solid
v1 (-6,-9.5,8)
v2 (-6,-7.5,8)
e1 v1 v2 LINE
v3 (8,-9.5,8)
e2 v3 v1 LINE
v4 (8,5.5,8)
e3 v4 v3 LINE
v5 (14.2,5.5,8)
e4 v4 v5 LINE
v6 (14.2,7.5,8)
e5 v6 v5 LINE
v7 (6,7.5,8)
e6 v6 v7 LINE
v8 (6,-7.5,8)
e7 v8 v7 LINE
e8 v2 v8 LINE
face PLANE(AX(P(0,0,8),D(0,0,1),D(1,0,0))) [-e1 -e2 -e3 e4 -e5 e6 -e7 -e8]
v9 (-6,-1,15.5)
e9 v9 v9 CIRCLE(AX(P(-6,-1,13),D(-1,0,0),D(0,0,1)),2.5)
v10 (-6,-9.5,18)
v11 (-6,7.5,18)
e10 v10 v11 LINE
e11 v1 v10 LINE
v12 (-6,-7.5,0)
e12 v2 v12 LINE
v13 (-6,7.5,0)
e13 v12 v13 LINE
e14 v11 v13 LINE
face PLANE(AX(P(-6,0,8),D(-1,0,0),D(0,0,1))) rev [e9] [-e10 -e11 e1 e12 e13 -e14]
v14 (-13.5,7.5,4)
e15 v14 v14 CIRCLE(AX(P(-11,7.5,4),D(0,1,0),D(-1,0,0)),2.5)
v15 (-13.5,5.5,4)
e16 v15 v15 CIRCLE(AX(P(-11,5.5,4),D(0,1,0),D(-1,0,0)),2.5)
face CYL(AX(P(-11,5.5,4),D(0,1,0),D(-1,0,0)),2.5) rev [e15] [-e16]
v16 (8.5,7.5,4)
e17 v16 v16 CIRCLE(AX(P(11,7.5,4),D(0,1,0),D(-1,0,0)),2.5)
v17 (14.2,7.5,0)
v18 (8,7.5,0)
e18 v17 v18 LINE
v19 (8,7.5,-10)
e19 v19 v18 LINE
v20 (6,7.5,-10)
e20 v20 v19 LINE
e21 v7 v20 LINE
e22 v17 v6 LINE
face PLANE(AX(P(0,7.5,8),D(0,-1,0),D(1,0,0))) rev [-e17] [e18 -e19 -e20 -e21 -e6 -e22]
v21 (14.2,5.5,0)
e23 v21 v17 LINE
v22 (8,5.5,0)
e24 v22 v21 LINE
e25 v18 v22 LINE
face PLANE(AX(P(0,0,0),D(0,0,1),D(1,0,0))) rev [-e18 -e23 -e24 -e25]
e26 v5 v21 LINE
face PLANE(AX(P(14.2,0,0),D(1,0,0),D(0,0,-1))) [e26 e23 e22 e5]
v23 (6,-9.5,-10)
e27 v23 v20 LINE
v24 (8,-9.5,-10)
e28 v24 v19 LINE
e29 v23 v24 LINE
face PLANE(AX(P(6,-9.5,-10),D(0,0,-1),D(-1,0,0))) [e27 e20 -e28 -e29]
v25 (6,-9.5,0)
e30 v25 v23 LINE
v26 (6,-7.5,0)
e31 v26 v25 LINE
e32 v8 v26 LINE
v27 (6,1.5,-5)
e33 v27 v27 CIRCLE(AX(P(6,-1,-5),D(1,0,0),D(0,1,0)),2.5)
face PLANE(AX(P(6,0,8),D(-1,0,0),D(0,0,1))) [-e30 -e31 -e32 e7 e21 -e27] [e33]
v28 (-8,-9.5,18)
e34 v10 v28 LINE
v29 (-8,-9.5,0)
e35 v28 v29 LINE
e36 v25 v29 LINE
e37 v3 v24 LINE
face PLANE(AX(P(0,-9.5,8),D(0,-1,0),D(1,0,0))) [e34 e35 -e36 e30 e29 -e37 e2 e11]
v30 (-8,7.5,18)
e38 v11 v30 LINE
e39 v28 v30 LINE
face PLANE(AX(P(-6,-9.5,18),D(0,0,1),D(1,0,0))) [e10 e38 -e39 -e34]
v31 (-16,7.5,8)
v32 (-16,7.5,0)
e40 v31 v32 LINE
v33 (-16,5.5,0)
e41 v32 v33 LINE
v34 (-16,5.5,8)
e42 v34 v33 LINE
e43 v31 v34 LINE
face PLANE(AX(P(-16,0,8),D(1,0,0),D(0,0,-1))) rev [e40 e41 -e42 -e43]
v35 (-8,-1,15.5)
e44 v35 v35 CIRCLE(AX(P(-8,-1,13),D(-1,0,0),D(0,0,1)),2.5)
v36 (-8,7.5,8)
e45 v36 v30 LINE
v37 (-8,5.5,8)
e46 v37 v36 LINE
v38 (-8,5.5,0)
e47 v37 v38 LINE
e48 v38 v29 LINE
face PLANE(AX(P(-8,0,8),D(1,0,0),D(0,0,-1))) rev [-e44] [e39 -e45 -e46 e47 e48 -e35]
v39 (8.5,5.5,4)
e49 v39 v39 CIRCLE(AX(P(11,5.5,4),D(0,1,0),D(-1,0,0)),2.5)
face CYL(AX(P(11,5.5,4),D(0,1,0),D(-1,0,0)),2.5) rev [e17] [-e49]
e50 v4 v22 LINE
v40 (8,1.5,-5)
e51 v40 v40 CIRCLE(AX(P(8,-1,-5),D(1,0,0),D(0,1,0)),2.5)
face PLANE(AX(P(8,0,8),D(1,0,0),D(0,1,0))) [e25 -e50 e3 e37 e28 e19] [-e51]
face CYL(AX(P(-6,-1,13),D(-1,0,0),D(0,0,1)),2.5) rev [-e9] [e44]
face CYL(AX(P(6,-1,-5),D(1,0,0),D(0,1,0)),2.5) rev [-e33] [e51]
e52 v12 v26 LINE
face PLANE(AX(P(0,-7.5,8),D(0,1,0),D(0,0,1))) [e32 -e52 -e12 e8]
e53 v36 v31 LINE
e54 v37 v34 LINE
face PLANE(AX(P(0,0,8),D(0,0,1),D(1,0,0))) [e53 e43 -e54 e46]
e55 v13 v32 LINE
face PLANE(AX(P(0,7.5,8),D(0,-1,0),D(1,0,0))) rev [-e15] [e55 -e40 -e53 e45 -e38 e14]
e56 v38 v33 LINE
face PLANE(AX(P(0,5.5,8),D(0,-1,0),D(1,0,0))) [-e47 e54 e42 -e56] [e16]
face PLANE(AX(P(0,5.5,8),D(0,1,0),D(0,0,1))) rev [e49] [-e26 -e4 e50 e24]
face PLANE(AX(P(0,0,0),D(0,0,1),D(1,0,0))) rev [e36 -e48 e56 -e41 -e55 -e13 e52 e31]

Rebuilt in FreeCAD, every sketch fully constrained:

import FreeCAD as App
import Part
import Sketcher

V = App.Vector

doc = App.newDocument("Part")
body = doc.addObject("PartDesign::Body", "Body")

# Sketch on XY plane
sketch1 = body.newObject("Sketcher::SketchObject", "Sketch")
sketch1.AttachmentSupport = (doc.getObject("XY_Plane"), [""])
sketch1.MapMode = "FlatFace"
sketch1.addGeometry(Part.LineSegment(V(-16, 7.5, 0), V(-16, 5.5, 0)), False)
sketch1.addGeometry(Part.LineSegment(V(-16, 5.5, 0), V(-8, 5.5, 0)), False)
sketch1.addGeometry(Part.LineSegment(V(-8, 5.5, 0), V(-8, -9.5, 0)), False)
sketch1.addGeometry(Part.LineSegment(V(-8, -9.5, 0), V(8, -9.5, 0)), False)
sketch1.addGeometry(Part.LineSegment(V(8, -9.5, 0), V(8, 5.5, 0)), False)
sketch1.addGeometry(Part.LineSegment(V(8, 5.5, 0), V(16, 5.5, 0)), False)
sketch1.addGeometry(Part.LineSegment(V(16, 5.5, 0), V(16, 7.5, 0)), False)
sketch1.addGeometry(Part.LineSegment(V(16, 7.5, 0), V(6, 7.5, 0)), False)
sketch1.addGeometry(Part.LineSegment(V(6, 7.5, 0), V(6, -7.5, 0)), False)
sketch1.addGeometry(Part.LineSegment(V(6, -7.5, 0), V(-6, -7.5, 0)), False)
sketch1.addGeometry(Part.LineSegment(V(-6, -7.5, 0), V(-6, 7.5, 0)), False)
sketch1.addGeometry(Part.LineSegment(V(-6, 7.5, 0), V(-16, 7.5, 0)), False)
sketch1.addConstraint(Sketcher.Constraint("Coincident", 0, 2, 1, 1))
sketch1.addConstraint(Sketcher.Constraint("Coincident", 1, 2, 2, 1))
sketch1.addConstraint(Sketcher.Constraint("Coincident", 2, 2, 3, 1))
sketch1.addConstraint(Sketcher.Constraint("Coincident", 3, 2, 4, 1))
sketch1.addConstraint(Sketcher.Constraint("Coincident", 4, 2, 5, 1))
sketch1.addConstraint(Sketcher.Constraint("Coincident", 5, 2, 6, 1))
sketch1.addConstraint(Sketcher.Constraint("Coincident", 6, 2, 7, 1))
sketch1.addConstraint(Sketcher.Constraint("Coincident", 7, 2, 8, 1))
sketch1.addConstraint(Sketcher.Constraint("Coincident", 8, 2, 9, 1))
sketch1.addConstraint(Sketcher.Constraint("Coincident", 9, 2, 10, 1))
sketch1.addConstraint(Sketcher.Constraint("Coincident", 10, 2, 11, 1))
sketch1.addConstraint(Sketcher.Constraint("Coincident", 11, 2, 0, 1))
sketch1.addConstraint(Sketcher.Constraint("Vertical", 0))
sketch1.addConstraint(Sketcher.Constraint("Horizontal", 1))
sketch1.addConstraint(Sketcher.Constraint("Vertical", 2))
sketch1.addConstraint(Sketcher.Constraint("Horizontal", 3))
sketch1.addConstraint(Sketcher.Constraint("Vertical", 4))
sketch1.addConstraint(Sketcher.Constraint("Horizontal", 5))
sketch1.addConstraint(Sketcher.Constraint("Vertical", 6))
sketch1.addConstraint(Sketcher.Constraint("Horizontal", 7))
sketch1.addConstraint(Sketcher.Constraint("Vertical", 8))
sketch1.addConstraint(Sketcher.Constraint("Horizontal", 9))
sketch1.addConstraint(Sketcher.Constraint("Vertical", 10))
sketch1.addConstraint(Sketcher.Constraint("Horizontal", 11))
sketch1.addConstraint(Sketcher.Constraint("Symmetric", 7, 2, 9, 2, -1, 1))
sketch1.addConstraint(Sketcher.Constraint("Symmetric", 1, 2, 4, 2, -2))
sketch1.addConstraint(Sketcher.Constraint("Symmetric", 6, 2, 11, 2, -2))
sketch1.addConstraint(Sketcher.Constraint("Equal", 4, 8))
sketch1.addConstraint(Sketcher.Constraint("DistanceX", 1, 1, 1, 2, 8.0))
sketch1.addConstraint(Sketcher.Constraint("DistanceX", 3, 1, 3, 2, 16.0))
sketch1.addConstraint(Sketcher.Constraint("DistanceX", 7, 2, 7, 1, 10.0))
sketch1.addConstraint(Sketcher.Constraint("DistanceY", 0, 2, 0, 1, 2.0))
sketch1.addConstraint(Sketcher.Constraint("DistanceY", 2, 2, 2, 1, 15.0))
pad1 = body.newObject("PartDesign::Pad", "Pad")
pad1.Profile = sketch1
pad1.Length = 8

# Sketch on XZ plane
sketch2 = body.newObject("Sketcher::SketchObject", "Sketch001")
sketch2.AttachmentSupport = (doc.getObject("XZ_Plane"), [""])
sketch2.MapMode = "FlatFace"
sketch2.AttachmentOffset = App.Placement(V(0, 0, -7.5), App.Rotation())
sketch2.addGeometry(Part.Circle(V(-11, 4, 0), V(0, 0, 1), 2.5), False)
sketch2.addGeometry(Part.Circle(V(11, 4, 0), V(0, 0, 1), 2.5), False)
sketch2.addConstraint(Sketcher.Constraint("Equal", 0, 1))
sketch2.addConstraint(Sketcher.Constraint("Symmetric", 0, 3, 1, 3, -2))
sketch2.addConstraint(Sketcher.Constraint("Diameter", 0, 5.0))
sketch2.addConstraint(Sketcher.Constraint("DistanceX", 0, 3, -1, 1, 11.0))
sketch2.addConstraint(Sketcher.Constraint("DistanceY", -1, 1, 0, 3, 4.0))
pocket1 = body.newObject("PartDesign::Pocket", "Pocket")
pocket1.Profile = sketch2
pocket1.Length = 2
pocket1.Reversed = True

# Sketch on YZ plane
sketch3 = body.newObject("Sketcher::SketchObject", "Sketch002")
sketch3.AttachmentSupport = (doc.getObject("YZ_Plane"), [""])
sketch3.MapMode = "FlatFace"
sketch3.AttachmentOffset = App.Placement(V(0, 0, 16), App.Rotation())
sketch3.addGeometry(Part.LineSegment(V(7.5, 8, 0), V(5.5, 8, 0)), False)
sketch3.addGeometry(Part.LineSegment(V(5.5, 8, 0), V(5.5, 0, 0)), False)
sketch3.addGeometry(Part.LineSegment(V(5.5, 0, 0), V(7.5, 0, 0)), False)
sketch3.addGeometry(Part.LineSegment(V(7.5, 0, 0), V(7.5, 8, 0)), False)
sketch3.addConstraint(Sketcher.Constraint("Coincident", 0, 2, 1, 1))
sketch3.addConstraint(Sketcher.Constraint("Coincident", 1, 2, 2, 1))
sketch3.addConstraint(Sketcher.Constraint("Coincident", 2, 2, 3, 1))
sketch3.addConstraint(Sketcher.Constraint("Coincident", 3, 2, 0, 1))
sketch3.addConstraint(Sketcher.Constraint("Horizontal", 0))
sketch3.addConstraint(Sketcher.Constraint("Vertical", 1))
sketch3.addConstraint(Sketcher.Constraint("Horizontal", 2))
sketch3.addConstraint(Sketcher.Constraint("Vertical", 3))
sketch3.addConstraint(Sketcher.Constraint("PointOnObject", 1, 2, -1))
sketch3.addConstraint(Sketcher.Constraint("DistanceX", 0, 2, 0, 1, 2.0))
sketch3.addConstraint(Sketcher.Constraint("DistanceY", 1, 2, 1, 1, 8.0))
sketch3.addConstraint(Sketcher.Constraint("DistanceX", -1, 1, 0, 2, 5.5))
pocket2 = body.newObject("PartDesign::Pocket", "Pocket001")
pocket2.Profile = sketch3
pocket2.Length = 1.8

# Sketch on YZ plane
sketch4 = body.newObject("Sketcher::SketchObject", "Sketch003")
sketch4.AttachmentSupport = (doc.getObject("YZ_Plane"), [""])
sketch4.MapMode = "FlatFace"
sketch4.AttachmentOffset = App.Placement(V(0, 0, -8), App.Rotation())
sketch4.addGeometry(Part.LineSegment(V(8, 8, 0), V(-10, 8, 0)), False)
sketch4.addGeometry(Part.LineSegment(V(-10, 8, 0), V(-10, 18, 0)), False)
sketch4.addGeometry(Part.LineSegment(V(-10, 18, 0), V(8, 18, 0)), False)
sketch4.addGeometry(Part.LineSegment(V(8, 18, 0), V(8, 8, 0)), False)
sketch4.addConstraint(Sketcher.Constraint("Coincident", 0, 2, 1, 1))
sketch4.addConstraint(Sketcher.Constraint("Coincident", 1, 2, 2, 1))
sketch4.addConstraint(Sketcher.Constraint("Coincident", 2, 2, 3, 1))
sketch4.addConstraint(Sketcher.Constraint("Coincident", 3, 2, 0, 1))
sketch4.addConstraint(Sketcher.Constraint("Horizontal", 0))
sketch4.addConstraint(Sketcher.Constraint("Vertical", 1))
sketch4.addConstraint(Sketcher.Constraint("Horizontal", 2))
sketch4.addConstraint(Sketcher.Constraint("Vertical", 3))
sketch4.addConstraint(Sketcher.Constraint("DistanceX", 0, 2, 0, 1, 17.0))
sketch4.addConstraint(Sketcher.Constraint("DistanceY", 1, 1, 1, 2, 10.0))
sketch4.addConstraint(Sketcher.Constraint("DistanceY", -1, 1, 0, 2, 8.0))
sketch4.addConstraint(Sketcher.Constraint("DistanceX", 0, 2, -1, 1, 9.5))
pad2 = body.newObject("PartDesign::Pad", "Pad001")
pad2.Profile = sketch4
pad2.Length = 2

# Sketch on YZ plane
sketch5 = body.newObject("Sketcher::SketchObject", "Sketch004")
sketch5.AttachmentSupport = (doc.getObject("YZ_Plane"), [""])
sketch5.MapMode = "FlatFace"
sketch5.AttachmentOffset = App.Placement(V(0, 0, 8), App.Rotation())
sketch5.addGeometry(Part.LineSegment(V(7.5, 0, 0), V(-9.5, 0, 0)), False)
sketch5.addGeometry(Part.LineSegment(V(-9.5, 0, 0), V(-9.5, -10, 0)), False)
sketch5.addGeometry(Part.LineSegment(V(-9.5, -10, 0), V(7.5, -10, 0)), False)
sketch5.addGeometry(Part.LineSegment(V(7.5, -10, 0), V(7.5, 0, 0)), False)
sketch5.addGeometry(Part.Circle(V(-1, -5, 0), V(0, 0, 1), 2.5), False)
sketch5.addConstraint(Sketcher.Constraint("Coincident", 0, 2, 1, 1))
sketch5.addConstraint(Sketcher.Constraint("Coincident", 1, 2, 2, 1))
sketch5.addConstraint(Sketcher.Constraint("Coincident", 2, 2, 3, 1))
sketch5.addConstraint(Sketcher.Constraint("Coincident", 3, 2, 0, 1))
sketch5.addConstraint(Sketcher.Constraint("Horizontal", 0))
sketch5.addConstraint(Sketcher.Constraint("Vertical", 1))
sketch5.addConstraint(Sketcher.Constraint("Horizontal", 2))
sketch5.addConstraint(Sketcher.Constraint("Vertical", 3))
sketch5.addConstraint(Sketcher.Constraint("PointOnObject", 0, 2, -1))
sketch5.addConstraint(Sketcher.Constraint("Diameter", 4, 5.0))
sketch5.addConstraint(Sketcher.Constraint("DistanceX", 0, 2, 0, 1, 17.0))
sketch5.addConstraint(Sketcher.Constraint("DistanceY", 1, 2, 1, 1, 10.0))
sketch5.addConstraint(Sketcher.Constraint("DistanceX", 4, 3, -1, 1, 1.0))
sketch5.addConstraint(Sketcher.Constraint("DistanceY", 4, 3, -1, 1, 5.0))
sketch5.addConstraint(Sketcher.Constraint("DistanceX", 0, 2, -1, 1, 9.5))
pad3 = body.newObject("PartDesign::Pad", "Pad002")
pad3.Profile = sketch5
pad3.Length = 2
pad3.Reversed = True

# Sketch on YZ plane
sketch6 = body.newObject("Sketcher::SketchObject", "Sketch005")
sketch6.AttachmentSupport = (doc.getObject("YZ_Plane"), [""])
sketch6.MapMode = "FlatFace"
sketch6.AttachmentOffset = App.Placement(V(0, 0, -8), App.Rotation())
sketch6.addGeometry(Part.Circle(V(-1, 13, 0), V(0, 0, 1), 2.5), False)
sketch6.addConstraint(Sketcher.Constraint("Diameter", 0, 5.0))
sketch6.addConstraint(Sketcher.Constraint("DistanceX", 0, 3, -1, 1, 1.0))
sketch6.addConstraint(Sketcher.Constraint("DistanceY", -1, 1, 0, 3, 13.0))
pocket3 = body.newObject("PartDesign::Pocket", "Pocket002")
pocket3.Profile = sketch6
pocket3.Length = 2
pocket3.Reversed = True

doc.recompute()
